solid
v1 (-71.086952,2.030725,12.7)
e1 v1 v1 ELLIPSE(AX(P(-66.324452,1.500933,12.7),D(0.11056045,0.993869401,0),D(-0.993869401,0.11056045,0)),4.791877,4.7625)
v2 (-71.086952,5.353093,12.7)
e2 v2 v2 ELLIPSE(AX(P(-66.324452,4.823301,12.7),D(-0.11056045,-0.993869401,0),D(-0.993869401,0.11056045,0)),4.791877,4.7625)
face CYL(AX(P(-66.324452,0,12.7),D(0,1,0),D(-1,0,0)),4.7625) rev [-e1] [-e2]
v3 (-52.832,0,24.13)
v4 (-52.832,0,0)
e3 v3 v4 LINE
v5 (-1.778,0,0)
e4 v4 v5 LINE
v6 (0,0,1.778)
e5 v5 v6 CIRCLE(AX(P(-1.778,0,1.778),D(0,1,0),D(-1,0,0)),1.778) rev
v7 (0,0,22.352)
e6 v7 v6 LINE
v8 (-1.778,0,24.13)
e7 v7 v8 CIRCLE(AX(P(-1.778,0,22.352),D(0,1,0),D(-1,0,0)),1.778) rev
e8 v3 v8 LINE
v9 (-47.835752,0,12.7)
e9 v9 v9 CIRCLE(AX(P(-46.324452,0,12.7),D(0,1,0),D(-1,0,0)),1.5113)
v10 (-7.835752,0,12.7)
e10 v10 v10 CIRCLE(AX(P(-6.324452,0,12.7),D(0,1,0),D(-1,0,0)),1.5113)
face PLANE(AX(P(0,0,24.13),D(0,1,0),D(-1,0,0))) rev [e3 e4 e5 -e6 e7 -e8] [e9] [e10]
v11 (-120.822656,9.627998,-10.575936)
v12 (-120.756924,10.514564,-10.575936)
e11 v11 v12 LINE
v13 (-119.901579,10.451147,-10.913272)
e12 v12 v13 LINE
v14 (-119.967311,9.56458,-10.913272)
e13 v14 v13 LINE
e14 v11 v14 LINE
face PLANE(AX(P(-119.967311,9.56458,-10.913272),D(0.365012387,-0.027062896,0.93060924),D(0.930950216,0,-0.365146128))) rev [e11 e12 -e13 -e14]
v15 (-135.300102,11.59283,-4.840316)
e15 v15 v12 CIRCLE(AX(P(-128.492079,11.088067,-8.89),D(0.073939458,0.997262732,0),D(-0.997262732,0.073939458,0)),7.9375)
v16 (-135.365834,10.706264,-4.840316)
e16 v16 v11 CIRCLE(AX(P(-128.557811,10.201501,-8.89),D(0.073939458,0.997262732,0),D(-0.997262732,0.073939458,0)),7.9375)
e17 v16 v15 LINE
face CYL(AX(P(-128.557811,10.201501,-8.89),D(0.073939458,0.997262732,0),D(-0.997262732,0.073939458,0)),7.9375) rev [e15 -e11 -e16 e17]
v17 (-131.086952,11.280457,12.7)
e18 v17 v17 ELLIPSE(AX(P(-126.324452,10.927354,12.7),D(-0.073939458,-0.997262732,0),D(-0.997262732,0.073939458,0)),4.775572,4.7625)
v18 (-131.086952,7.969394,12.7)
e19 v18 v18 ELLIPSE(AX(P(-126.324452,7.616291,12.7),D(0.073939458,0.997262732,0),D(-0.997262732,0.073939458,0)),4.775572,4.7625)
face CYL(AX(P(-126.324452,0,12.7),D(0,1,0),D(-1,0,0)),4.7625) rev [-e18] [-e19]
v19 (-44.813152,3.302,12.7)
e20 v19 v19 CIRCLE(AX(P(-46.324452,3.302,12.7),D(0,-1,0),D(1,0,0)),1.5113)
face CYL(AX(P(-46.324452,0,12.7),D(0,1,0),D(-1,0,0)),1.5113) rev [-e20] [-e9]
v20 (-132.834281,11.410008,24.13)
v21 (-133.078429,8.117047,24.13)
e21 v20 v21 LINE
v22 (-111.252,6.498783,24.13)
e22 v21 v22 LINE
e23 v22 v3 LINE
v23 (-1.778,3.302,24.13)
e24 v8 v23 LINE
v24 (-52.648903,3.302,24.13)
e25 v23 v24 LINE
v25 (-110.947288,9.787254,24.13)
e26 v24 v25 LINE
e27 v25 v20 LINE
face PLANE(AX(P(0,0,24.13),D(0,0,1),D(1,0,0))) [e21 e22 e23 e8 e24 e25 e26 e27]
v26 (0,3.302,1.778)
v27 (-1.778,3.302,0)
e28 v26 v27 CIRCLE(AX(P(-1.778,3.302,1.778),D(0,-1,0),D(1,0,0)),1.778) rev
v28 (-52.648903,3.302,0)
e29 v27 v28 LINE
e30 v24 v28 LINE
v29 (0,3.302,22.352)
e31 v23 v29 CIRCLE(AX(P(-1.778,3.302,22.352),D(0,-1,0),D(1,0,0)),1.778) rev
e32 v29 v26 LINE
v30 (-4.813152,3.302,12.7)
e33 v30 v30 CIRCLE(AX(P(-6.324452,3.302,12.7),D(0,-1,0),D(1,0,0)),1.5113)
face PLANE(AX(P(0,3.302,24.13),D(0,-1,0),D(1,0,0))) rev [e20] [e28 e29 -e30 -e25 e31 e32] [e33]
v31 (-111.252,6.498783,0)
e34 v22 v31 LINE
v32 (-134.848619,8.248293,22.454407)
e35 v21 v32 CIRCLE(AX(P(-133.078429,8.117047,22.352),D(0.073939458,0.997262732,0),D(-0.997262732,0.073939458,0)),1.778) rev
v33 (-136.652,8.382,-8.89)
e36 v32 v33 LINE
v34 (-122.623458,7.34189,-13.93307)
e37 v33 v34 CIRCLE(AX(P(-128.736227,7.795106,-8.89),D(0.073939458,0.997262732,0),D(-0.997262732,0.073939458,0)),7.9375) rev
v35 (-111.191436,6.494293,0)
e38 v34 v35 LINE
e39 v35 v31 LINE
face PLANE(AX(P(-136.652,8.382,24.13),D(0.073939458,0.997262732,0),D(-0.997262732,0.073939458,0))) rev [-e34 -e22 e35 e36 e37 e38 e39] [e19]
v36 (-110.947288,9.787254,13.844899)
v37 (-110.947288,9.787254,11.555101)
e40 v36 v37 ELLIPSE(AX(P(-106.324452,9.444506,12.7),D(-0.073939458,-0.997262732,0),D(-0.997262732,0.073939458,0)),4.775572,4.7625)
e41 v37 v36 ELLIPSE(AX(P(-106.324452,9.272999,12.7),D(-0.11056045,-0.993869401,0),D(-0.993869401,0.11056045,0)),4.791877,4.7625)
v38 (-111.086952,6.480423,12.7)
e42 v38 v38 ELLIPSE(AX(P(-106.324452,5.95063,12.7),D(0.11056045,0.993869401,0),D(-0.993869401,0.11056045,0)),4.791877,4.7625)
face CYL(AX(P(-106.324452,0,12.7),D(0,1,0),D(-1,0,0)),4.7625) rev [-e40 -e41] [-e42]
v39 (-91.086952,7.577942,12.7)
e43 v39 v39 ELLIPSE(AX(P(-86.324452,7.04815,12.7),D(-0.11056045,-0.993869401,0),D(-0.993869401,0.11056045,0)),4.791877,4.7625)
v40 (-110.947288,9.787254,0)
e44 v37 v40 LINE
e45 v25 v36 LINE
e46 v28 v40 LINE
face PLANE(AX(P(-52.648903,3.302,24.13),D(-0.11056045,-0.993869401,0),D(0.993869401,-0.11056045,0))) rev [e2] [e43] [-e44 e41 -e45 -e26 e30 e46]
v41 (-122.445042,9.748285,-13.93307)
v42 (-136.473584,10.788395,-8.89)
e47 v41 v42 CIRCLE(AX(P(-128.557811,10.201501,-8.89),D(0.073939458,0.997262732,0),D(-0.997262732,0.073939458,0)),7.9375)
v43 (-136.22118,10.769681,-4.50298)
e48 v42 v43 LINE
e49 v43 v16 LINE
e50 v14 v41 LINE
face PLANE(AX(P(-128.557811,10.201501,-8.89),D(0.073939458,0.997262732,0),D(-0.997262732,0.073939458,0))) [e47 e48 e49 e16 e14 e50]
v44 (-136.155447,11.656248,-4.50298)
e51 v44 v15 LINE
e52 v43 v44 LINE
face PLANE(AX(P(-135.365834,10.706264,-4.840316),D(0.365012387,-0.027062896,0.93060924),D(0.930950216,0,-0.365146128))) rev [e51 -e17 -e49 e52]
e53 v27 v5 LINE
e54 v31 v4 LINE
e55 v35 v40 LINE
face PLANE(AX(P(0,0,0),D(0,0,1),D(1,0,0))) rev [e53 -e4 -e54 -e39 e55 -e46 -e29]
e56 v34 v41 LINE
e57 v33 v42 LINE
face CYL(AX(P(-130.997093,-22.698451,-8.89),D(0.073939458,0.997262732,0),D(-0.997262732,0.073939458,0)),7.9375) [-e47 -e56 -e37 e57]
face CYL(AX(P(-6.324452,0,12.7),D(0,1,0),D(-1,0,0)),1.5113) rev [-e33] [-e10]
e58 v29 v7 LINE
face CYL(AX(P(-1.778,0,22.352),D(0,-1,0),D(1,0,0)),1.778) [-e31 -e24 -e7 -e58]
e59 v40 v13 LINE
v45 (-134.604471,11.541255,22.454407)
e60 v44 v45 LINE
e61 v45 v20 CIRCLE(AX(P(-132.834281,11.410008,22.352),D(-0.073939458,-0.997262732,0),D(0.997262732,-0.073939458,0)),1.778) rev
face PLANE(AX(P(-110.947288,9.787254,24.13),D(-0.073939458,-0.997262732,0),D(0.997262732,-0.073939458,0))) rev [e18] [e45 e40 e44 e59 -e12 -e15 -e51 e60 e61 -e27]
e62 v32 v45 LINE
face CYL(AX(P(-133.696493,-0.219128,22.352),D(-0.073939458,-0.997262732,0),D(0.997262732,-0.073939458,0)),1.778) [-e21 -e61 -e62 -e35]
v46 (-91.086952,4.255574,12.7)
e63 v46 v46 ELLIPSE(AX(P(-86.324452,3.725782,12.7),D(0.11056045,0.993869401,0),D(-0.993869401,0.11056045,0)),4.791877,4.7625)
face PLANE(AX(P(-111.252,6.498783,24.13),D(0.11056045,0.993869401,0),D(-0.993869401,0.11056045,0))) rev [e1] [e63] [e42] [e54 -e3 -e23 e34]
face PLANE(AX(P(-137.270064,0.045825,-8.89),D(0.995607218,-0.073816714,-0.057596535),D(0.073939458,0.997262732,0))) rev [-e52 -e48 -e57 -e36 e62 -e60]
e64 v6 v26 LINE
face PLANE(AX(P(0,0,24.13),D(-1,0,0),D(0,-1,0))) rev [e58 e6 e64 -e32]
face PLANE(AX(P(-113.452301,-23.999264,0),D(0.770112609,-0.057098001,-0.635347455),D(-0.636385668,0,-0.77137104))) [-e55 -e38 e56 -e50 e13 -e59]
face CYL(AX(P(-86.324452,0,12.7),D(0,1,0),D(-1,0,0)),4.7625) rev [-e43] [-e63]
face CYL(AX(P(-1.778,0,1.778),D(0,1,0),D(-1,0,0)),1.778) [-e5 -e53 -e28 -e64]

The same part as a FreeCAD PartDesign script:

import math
import FreeCAD as App
import Part
import Sketcher

V = App.Vector
Q = App.Units.Quantity


def edges_at(feature, points):
    """Names of the edges that pass closest to the given points."""
    edges = feature.Shape.Edges
    near = lambda p: min(range(len(edges)), key=lambda i: edges[i].distToShape(Part.Vertex(*p))[0])
    return sorted({f"Edge{near(p) + 1}" for p in points})

doc = App.newDocument("Part")
body = doc.addObject("PartDesign::Body", "Body")

# Sketch on XY plane
sketch1 = doc.addObject("Sketcher::SketchObject", "Sketch")
body.addObject(sketch1)
sketch1.AttachmentSupport = (doc.XY_Plane, [""])
sketch1.MapMode = "FlatFace"
sketch1.addGeometry(Part.LineSegment(V(-52.8, 0, 0), V(0, 0, 0)), False)
sketch1.addGeometry(Part.LineSegment(V(0, 0, 0), V(0, 3.3, 0)), False)
sketch1.addGeometry(Part.LineSegment(V(0, 3.3, 0), V(-52.6, 3.3, 0)), False)
sketch1.addGeometry(Part.LineSegment(V(-52.6, 3.3, 0), V(-110.9, 9.8, 0)), False)
sketch1.addGeometry(Part.LineSegment(V(-110.9, 9.8, 0), V(-136.4, 11.7, 0)), False)
sketch1.addGeometry(Part.LineSegment(V(-136.4, 11.7, 0), V(-136.7, 8.4, 0)), False)
sketch1.addGeometry(Part.LineSegment(V(-136.7, 8.4, 0), V(-111.3, 6.5, 0)), False)
sketch1.addGeometry(Part.LineSegment(V(-111.3, 6.5, 0), V(-52.8, 0, 0)), False)
sketch1.addConstraint(Sketcher.Constraint("Coincident", 0, 2, 1, 1))
sketch1.addConstraint(Sketcher.Constraint("Coincident", 1, 2, 2, 1))
sketch1.addConstraint(Sketcher.Constraint("Coincident", 2, 2, 3, 1))
sketch1.addConstraint(Sketcher.Constraint("Coincident", 3, 2, 4, 1))
sketch1.addConstraint(Sketcher.Constraint("Coincident", 4, 2, 5, 1))
sketch1.addConstraint(Sketcher.Constraint("Coincident", 5, 2, 6, 1))
sketch1.addConstraint(Sketcher.Constraint("Coincident", 6, 2, 7, 1))
sketch1.addConstraint(Sketcher.Constraint("Coincident", 7, 2, 0, 1))
sketch1.addConstraint(Sketcher.Constraint("Horizontal", 0))
sketch1.addConstraint(Sketcher.Constraint("Vertical", 1))
sketch1.addConstraint(Sketcher.Constraint("Horizontal", 2))
sketch1.addConstraint(Sketcher.Constraint("Coincident", 0, 2, -1, 1))
sketch1.addConstraint(Sketcher.Constraint("Perpendicular", 4, 5))
sketch1.addConstraint(Sketcher.Constraint("Perpendicular", 5, 6))
sketch1.addConstraint(Sketcher.Constraint("Parallel", 3, 7))
sketch1.addConstraint(Sketcher.Constraint("DistanceX", 5, 2, 6, 2, Q("1 in")))
sketch1.addConstraint(Sketcher.Constraint("DistanceX", 0, 1, 0, 2, Q("2.08 in")))
sketch1.addConstraint(Sketcher.Constraint("DistanceY", 1, 1, 1, 2, Q("0.13 in")))
sketch1.addConstraint(Sketcher.Constraint("DistanceY", 2, 2, 5, 2, Q("0.2 in")))
sketch1.addConstraint(Sketcher.Constraint("DistanceX", 6, 2, 7, 2, Q("2.3 in")))
sketch1.addConstraint(Sketcher.Constraint("Distance", 5, Q("0.13 in")))
sketch1.addConstraint(Sketcher.Constraint("Distance", 7, 58.780359))
sketch1.addConstraint(Sketcher.Constraint("DistanceX", 2, 2, 2, 1, 52.648903))
pad1 = doc.addObject("PartDesign::Pad", "Pad")
body.addObject(pad1)
pad1.Profile = sketch1
pad1.Length = Q("0.95 in")

# Sketch on XZ plane
sketch2 = doc.addObject("Sketcher::SketchObject", "Sketch001")
body.addObject(sketch2)
sketch2.AttachmentSupport = (doc.XZ_Plane, [""])
sketch2.MapMode = "FlatFace"
sketch2.AttachmentOffset = App.Placement(V(0, 0, -0.13 * 25.4), App.Rotation())
sketch2.addGeometry(Part.Circle(V(-6.3, 12.7, 0), V(0, 0, 1), 1.5), False)
sketch2.addGeometry(Part.Circle(V(-46.3, 12.7, 0), V(0, 0, 1), 1.5), False)
sketch2.addGeometry(Part.Circle(V(-66.3, 12.7, 0), V(0, 0, 1), 4.8), False)
sketch2.addGeometry(Part.Circle(V(-86.3, 12.7, 0), V(0, 0, 1), 4.8), False)
sketch2.addGeometry(Part.Circle(V(-106.3, 12.7, 0), V(0, 0, 1), 4.8), False)
sketch2.addGeometry(Part.Circle(V(-126.3, 12.7, 0), V(0, 0, 1), 4.8), False)
sketch2.addConstraint(Sketcher.Constraint("Equal", 0, 1))
sketch2.addConstraint(Sketcher.Constraint("Equal", 2, 3))
sketch2.addConstraint(Sketcher.Constraint("Equal", 3, 4))
sketch2.addConstraint(Sketcher.Constraint("Equal", 4, 5))
sketch2.addConstraint(Sketcher.Constraint("Horizontal", 0, 3, 1, 3))
sketch2.addConstraint(Sketcher.Constraint("Horizontal", 1, 3, 2, 3))
sketch2.addConstraint(Sketcher.Constraint("Horizontal", 2, 3, 3, 3))
sketch2.addConstraint(Sketcher.Constraint("Horizontal", 3, 3, 4, 3))
sketch2.addConstraint(Sketcher.Constraint("Horizontal", 4, 3, 5, 3))
sketch2.addConstraint(Sketcher.Constraint("Diameter", 0, Q("0.119 in")))
sketch2.addConstraint(Sketcher.Constraint("Diameter", 2, Q("0.375 in")))
sketch2.addConstraint(Sketcher.Constraint("DistanceY", -1, 1, 0, 3, Q("0.5 in")))
sketch2.addConstraint(Sketcher.Constraint("DistanceX", 1, 3, 0, 3, 40.0))
sketch2.addConstraint(Sketcher.Constraint("DistanceX", 2, 3, 1, 3, 20.0))
sketch2.addConstraint(Sketcher.Constraint("DistanceX", 3, 3, 2, 3, 20.0))
sketch2.addConstraint(Sketcher.Constraint("DistanceX", 4, 3, 3, 3, 20.0))
sketch2.addConstraint(Sketcher.Constraint("DistanceX", 5, 3, 4, 3, 20.0))
sketch2.addConstraint(Sketcher.Constraint("DistanceX", 0, 3, -1, 1, 6.324452))
pocket1 = doc.addObject("PartDesign::Pocket", "Pocket")
body.addObject(pocket1)
pocket1.Profile = sketch2
pocket1.Type = "ThroughAll"
pocket1.Midplane = True

# Sketch on an angled plane
sketch3 = doc.addObject("Sketcher::SketchObject", "Sketch002")
body.addObject(sketch3)
sketch3.Placement = App.Placement(V(0.11513, 1.552819, 0), App.Rotation(V(0.997262732, -0.073939458, 0), V(0, 0, -1), V(0.073939458, 0.997262732, 0), "ZXY"))
sketch3.addGeometry(Part.LineSegment(V(-137, 9, 0), V(-137, 0, 0)), False)
sketch3.addGeometry(Part.LineSegment(V(-137, 0, 0), V(-111, 0, 0)), False)
sketch3.addGeometry(Part.LineSegment(V(-111, 0, 0), V(-123, 14, 0)), False)
sketch3.addGeometry(Part.ArcOfCircle(Part.Circle(V(-129, 9, 0), V(0, 0, 1), 8), math.radians(39), math.radians(180)), False)
sketch3.addConstraint(Sketcher.Constraint("Coincident", 0, 2, 1, 1))
sketch3.addConstraint(Sketcher.Constraint("Coincident", 1, 2, 2, 1))
sketch3.addConstraint(Sketcher.Constraint("Tangent", 2, 2, 3, 1))
sketch3.addConstraint(Sketcher.Constraint("Tangent", 3, 2, 0, 1))
sketch3.addConstraint(Sketcher.Constraint("Vertical", 0))
sketch3.addConstraint(Sketcher.Constraint("Horizontal", 1))
sketch3.addConstraint(Sketcher.Constraint("PointOnObject", 0, 2, -1))
sketch3.addConstraint(Sketcher.Constraint("Radius", 3, Q("0.3125 in")))
sketch3.addConstraint(Sketcher.Constraint("DistanceY", 0, 2, 0, 1, Q("0.35 in")))
sketch3.addConstraint(Sketcher.Constraint("DistanceX", 2, 2, 1, 2, 11.463401))
sketch3.addConstraint(Sketcher.Constraint("DistanceX", 1, 2, -1, 1, 111.367259))
pad2 = doc.addObject("PartDesign::Pad", "Pad001")
body.addObject(pad2)
pad2.Profile = sketch3
pad2.Length = Q("0.13 in")
pad2.Reversed = True

# Sketch on an angled plane
sketch4 = doc.addObject("Sketcher::SketchObject", "Sketch003")
body.addObject(sketch4)
sketch4.Placement = App.Placement(V(0.11513, 1.552819, 0), App.Rotation(V(0.997262732, -0.073939458, 0), V(0, 0, -1), V(0.073939458, 0.997262732, 0), "ZXY"))
sketch4.addGeometry(Part.LineSegment(V(-135, -24.1, 0), V(-136.9, 8.9, 0)), False)
sketch4.addGeometry(Part.LineSegment(V(-136.9, 8.9, 0), V(-138.8, 8.9, 0)), False)
sketch4.addGeometry(Part.LineSegment(V(-138.8, 8.9, 0), V(-138.8, -24.1, 0)), False)
sketch4.addGeometry(Part.LineSegment(V(-138.8, -24.1, 0), V(-135, -24.1, 0)), False)
sketch4.addConstraint(Sketcher.Constraint("Coincident", 0, 2, 1, 1))
sketch4.addConstraint(Sketcher.Constraint("Coincident", 1, 2, 2, 1))
sketch4.addConstraint(Sketcher.Constraint("Coincident", 2, 2, 3, 1))
sketch4.addConstraint(Sketcher.Constraint("Coincident", 3, 2, 0, 1))
sketch4.addConstraint(Sketcher.Constraint("Horizontal", 1))
sketch4.addConstraint(Sketcher.Constraint("Vertical", 2))
sketch4.addConstraint(Sketcher.Constraint("Horizontal", 3))
sketch4.addConstraint(Sketcher.Constraint("DistanceY", 2, 2, 2, 1, Q("1.3 in")))
sketch4.addConstraint(Sketcher.Constraint("DistanceX", 3, 1, 3, 2, Q("0.15 in")))
sketch4.addConstraint(Sketcher.Constraint("DistanceX", 1, 2, 1, 1, Q("0.075 in")))
sketch4.addConstraint(Sketcher.Constraint("DistanceY", -1, 1, 0, 2, Q("0.35 in")))
sketch4.addConstraint(Sketcher.Constraint("DistanceX", 0, 2, -1, 1, 136.897707))
pocket2 = doc.addObject("PartDesign::Pocket", "Pocket001")
body.addObject(pocket2)
pocket2.Profile = sketch4
pocket2.Type = "ThroughAll"
pocket2.Midplane = True
doc.recompute()

fillet = doc.addObject("PartDesign::Fillet", "Fillet")
body.addObject(fillet)
fillet.Base = (pocket2, edges_at(pocket2, [(0, 1.651, 0), (0, 1.651, 24.13), (-134.63, 9.888, 24.13)]))
fillet.Radius = Q("0.07 in")

# Sketch on an angled plane
sketch5 = doc.addObject("Sketcher::SketchObject", "Sketch004")
body.addObject(sketch5)
sketch5.Placement = App.Placement(V(0.11513, 1.552819, 0), App.Rotation(V(0.997262732, -0.073939458, 0), V(0, 0, -1), V(0.073939458, 0.997262732, 0), "ZXY"))
sketch5.addGeometry(Part.LineSegment(V(-136.6, 4.5, 0), V(-135.8, 4.8, 0)), False)
sketch5.addGeometry(Part.ArcOfCircle(Part.Circle(V(-129, 8.9, 0), V(0, 0, 1), 7.9), math.radians(-149), math.radians(12)), False)
sketch5.addGeometry(Part.LineSegment(V(-121.2, 10.6, 0), V(-120.3, 10.9, 0)), False)
sketch5.addGeometry(Part.LineSegment(V(-120.3, 10.9, 0), V(-122.8, 13.9, 0)), False)
sketch5.addGeometry(Part.ArcOfCircle(Part.Circle(V(-129, 8.9, 0), V(0, 0, 1), 7.9), math.radians(39), math.radians(183)), False)
sketch5.addGeometry(Part.LineSegment(V(-136.9, 8.4, 0), V(-136.6, 4.5, 0)), False)
sketch5.addConstraint(Sketcher.Constraint("Coincident", 0, 2, 1, 1))
sketch5.addConstraint(Sketcher.Constraint("Coincident", 1, 2, 2, 1))
sketch5.addConstraint(Sketcher.Constraint("Coincident", 2, 2, 3, 1))
sketch5.addConstraint(Sketcher.Constraint("Tangent", 3, 2, 4, 1))
sketch5.addConstraint(Sketcher.Constraint("Tangent", 4, 2, 5, 1))
sketch5.addConstraint(Sketcher.Constraint("Coincident", 5, 2, 0, 1))
sketch5.addConstraint(Sketcher.Constraint("Coincident", 4, 3, 1, 3))
sketch5.addConstraint(Sketcher.Constraint("Equal", 1, 4))
sketch5.addConstraint(Sketcher.Constraint("Parallel", 0, 2))
sketch5.addConstraint(Sketcher.Constraint("Equal", 0, 2))
sketch5.addConstraint(Sketcher.Constraint("Equal", 3, 5))
sketch5.addConstraint(Sketcher.Constraint("Radius", 1, Q("0.3125 in")))
sketch5.addConstraint(Sketcher.Constraint("DistanceY", -1, 1, 1, 3, Q("0.35 in")))
sketch5.addConstraint(Sketcher.Constraint("Angle", 0, Q("21.470016 deg")))
sketch5.addConstraint(Sketcher.Constraint("DistanceY", 2, 2, 3, 2, 3.019798))
sketch5.addConstraint(Sketcher.Constraint("Distance", 3, 3.910509))
sketch5.addConstraint(Sketcher.Constraint("DistanceX", 1, 2, -1, 1, 121.203821))
pocket3 = doc.addObject("PartDesign::Pocket", "Pocket002")
body.addObject(pocket3)
pocket3.Profile = sketch5
pocket3.Length = Q("0.035 in")

doc.recompute()
